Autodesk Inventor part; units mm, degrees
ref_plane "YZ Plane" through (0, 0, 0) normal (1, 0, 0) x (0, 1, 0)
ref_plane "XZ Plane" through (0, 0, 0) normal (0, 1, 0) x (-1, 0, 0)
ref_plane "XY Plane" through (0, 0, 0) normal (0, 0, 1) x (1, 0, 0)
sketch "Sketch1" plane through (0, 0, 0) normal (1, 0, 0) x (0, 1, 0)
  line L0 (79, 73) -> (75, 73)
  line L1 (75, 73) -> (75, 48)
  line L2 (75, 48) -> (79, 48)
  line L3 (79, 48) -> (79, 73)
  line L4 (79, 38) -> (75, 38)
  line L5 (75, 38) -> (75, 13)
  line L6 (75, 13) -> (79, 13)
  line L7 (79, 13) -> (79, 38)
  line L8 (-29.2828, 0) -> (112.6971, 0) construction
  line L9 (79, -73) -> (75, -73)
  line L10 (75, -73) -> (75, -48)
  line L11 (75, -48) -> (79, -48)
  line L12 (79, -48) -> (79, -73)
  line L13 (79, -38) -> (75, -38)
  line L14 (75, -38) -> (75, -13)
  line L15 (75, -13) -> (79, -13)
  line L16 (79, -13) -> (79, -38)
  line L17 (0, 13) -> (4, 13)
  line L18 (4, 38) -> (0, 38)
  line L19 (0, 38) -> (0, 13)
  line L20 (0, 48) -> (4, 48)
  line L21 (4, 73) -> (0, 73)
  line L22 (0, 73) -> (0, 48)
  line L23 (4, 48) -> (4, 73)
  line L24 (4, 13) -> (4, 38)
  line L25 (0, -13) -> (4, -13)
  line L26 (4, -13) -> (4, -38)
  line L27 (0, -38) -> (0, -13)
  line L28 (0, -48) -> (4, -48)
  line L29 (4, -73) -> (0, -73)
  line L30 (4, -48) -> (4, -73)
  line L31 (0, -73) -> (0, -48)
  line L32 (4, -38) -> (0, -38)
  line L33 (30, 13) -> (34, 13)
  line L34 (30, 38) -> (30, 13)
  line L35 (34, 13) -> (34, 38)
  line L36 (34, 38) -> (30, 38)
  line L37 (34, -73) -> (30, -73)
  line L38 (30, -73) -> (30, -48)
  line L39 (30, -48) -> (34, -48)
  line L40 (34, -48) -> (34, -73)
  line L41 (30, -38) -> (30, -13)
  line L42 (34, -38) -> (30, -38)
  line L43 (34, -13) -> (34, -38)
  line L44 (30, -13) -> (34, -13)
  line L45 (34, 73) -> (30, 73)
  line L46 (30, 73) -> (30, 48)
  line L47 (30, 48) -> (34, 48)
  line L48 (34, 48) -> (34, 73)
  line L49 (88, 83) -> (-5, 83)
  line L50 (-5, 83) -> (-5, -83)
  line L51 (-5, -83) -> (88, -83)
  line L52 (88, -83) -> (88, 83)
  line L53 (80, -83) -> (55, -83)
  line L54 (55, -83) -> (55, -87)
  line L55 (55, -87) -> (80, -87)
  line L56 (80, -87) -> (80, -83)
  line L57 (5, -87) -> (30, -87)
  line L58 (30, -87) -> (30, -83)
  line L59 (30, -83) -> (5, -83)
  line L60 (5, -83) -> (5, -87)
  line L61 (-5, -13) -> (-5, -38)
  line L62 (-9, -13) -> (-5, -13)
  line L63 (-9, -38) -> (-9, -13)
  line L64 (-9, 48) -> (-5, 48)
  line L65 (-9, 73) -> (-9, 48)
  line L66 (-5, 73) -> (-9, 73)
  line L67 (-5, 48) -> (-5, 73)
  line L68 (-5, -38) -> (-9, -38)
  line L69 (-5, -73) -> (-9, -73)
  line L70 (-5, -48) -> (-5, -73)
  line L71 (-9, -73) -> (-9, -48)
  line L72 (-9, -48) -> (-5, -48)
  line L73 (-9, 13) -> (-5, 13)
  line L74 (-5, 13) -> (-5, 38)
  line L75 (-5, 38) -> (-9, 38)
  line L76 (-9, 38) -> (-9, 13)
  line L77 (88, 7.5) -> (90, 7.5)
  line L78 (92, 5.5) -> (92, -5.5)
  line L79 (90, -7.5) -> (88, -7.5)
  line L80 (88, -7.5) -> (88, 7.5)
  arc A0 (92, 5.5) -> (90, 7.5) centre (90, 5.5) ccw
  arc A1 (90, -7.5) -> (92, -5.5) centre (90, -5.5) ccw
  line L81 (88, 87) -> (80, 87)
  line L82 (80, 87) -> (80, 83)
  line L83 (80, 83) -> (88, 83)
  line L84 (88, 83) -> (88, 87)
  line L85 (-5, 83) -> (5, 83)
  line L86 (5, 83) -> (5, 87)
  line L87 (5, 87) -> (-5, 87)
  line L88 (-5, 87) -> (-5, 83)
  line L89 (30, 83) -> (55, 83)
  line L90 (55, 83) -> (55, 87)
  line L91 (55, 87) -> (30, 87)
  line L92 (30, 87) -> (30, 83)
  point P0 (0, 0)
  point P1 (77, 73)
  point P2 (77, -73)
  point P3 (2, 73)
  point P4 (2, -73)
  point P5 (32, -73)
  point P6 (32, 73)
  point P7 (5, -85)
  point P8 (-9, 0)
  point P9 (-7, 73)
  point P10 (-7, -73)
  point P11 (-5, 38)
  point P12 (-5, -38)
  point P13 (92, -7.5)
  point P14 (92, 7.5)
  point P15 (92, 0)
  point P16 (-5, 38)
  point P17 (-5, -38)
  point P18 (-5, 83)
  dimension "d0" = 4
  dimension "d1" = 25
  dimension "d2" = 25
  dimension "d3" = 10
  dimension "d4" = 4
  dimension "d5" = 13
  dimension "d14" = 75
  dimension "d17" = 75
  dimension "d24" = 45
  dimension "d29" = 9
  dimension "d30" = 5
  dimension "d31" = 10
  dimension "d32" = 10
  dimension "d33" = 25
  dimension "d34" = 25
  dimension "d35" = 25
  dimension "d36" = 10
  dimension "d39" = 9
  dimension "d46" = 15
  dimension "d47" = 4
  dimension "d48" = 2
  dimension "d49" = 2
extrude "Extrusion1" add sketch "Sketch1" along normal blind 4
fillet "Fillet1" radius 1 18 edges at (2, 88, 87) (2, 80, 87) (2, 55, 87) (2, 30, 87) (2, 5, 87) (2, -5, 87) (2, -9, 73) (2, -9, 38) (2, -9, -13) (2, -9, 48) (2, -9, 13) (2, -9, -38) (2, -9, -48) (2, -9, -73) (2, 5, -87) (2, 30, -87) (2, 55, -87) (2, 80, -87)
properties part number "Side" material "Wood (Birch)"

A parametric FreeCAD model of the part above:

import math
import FreeCAD as App
import Part
import Sketcher

V = App.Vector


def edges_at(feature, points):
    """Names of the edges that pass closest to the given points."""
    edges = feature.Shape.Edges
    near = lambda p: min(range(len(edges)), key=lambda i: edges[i].distToShape(Part.Vertex(*p))[0])
    return sorted({f"Edge{near(p) + 1}" for p in points})


def add_polygon(sketch, points):
    """Adds a closed chain of lines whose ends are joined by coincident constraints."""
    first, n = sketch.GeometryCount, len(points)
    for a, b in zip(points, points[1:] + points[:1]):
        sketch.addGeometry(Part.LineSegment(App.Vector(*a, 0), App.Vector(*b, 0)), False)
    for i in range(n):
        sketch.addConstraint(Sketcher.Constraint("Coincident", first + i, 2, first + (i + 1) % n, 1))

doc = App.newDocument("Part")
body = doc.addObject("PartDesign::Body", "Body")

# Sketch on YZ plane
sketch1 = body.newObject("Sketcher::SketchObject", "Sketch")
sketch1.AttachmentSupport = (doc.getObject("YZ_Plane"), [""])
sketch1.MapMode = "FlatFace"
sketch1.addGeometry(Part.LineSegment(V(88, 7.5, 0), V(88, 87, 0)), False)  # 0
sketch1.addGeometry(Part.LineSegment(V(88, 87, 0), V(80, 87, 0)), False)  # 1
sketch1.addGeometry(Part.LineSegment(V(80, 87, 0), V(80, 83, 0)), False)  # 2
sketch1.addGeometry(Part.LineSegment(V(80, 83, 0), V(55, 83, 0)), False)  # 3
sketch1.addGeometry(Part.LineSegment(V(55, 83, 0), V(55, 87, 0)), False)  # 4
sketch1.addGeometry(Part.LineSegment(V(55, 87, 0), V(30, 87, 0)), False)  # 5
sketch1.addGeometry(Part.LineSegment(V(30, 87, 0), V(30, 83, 0)), False)  # 6
sketch1.addGeometry(Part.LineSegment(V(30, 83, 0), V(5, 83, 0)), False)  # 7
sketch1.addGeometry(Part.LineSegment(V(5, 83, 0), V(5, 87, 0)), False)  # 8
sketch1.addGeometry(Part.LineSegment(V(5, 87, 0), V(-5, 87, 0)), False)  # 9
sketch1.addGeometry(Part.LineSegment(V(-5, 87, 0), V(-5, 73, 0)), False)  # 10
sketch1.addGeometry(Part.LineSegment(V(-5, 73, 0), V(-9, 73, 0)), False)  # 11
sketch1.addGeometry(Part.LineSegment(V(-9, 73, 0), V(-9, 48, 0)), False)  # 12
sketch1.addGeometry(Part.LineSegment(V(-9, 48, 0), V(-5, 48, 0)), False)  # 13
sketch1.addGeometry(Part.LineSegment(V(-5, 48, 0), V(-5, 38, 0)), False)  # 14
sketch1.addGeometry(Part.LineSegment(V(-5, 38, 0), V(-9, 38, 0)), False)  # 15
sketch1.addGeometry(Part.LineSegment(V(-9, 38, 0), V(-9, 13, 0)), False)  # 16
sketch1.addGeometry(Part.LineSegment(V(-9, 13, 0), V(-5, 13, 0)), False)  # 17
sketch1.addGeometry(Part.LineSegment(V(-5, 13, 0), V(-5, -13, 0)), False)  # 18
sketch1.addGeometry(Part.LineSegment(V(-5, -13, 0), V(-9, -13, 0)), False)  # 19
sketch1.addGeometry(Part.LineSegment(V(-9, -13, 0), V(-9, -38, 0)), False)  # 20
sketch1.addGeometry(Part.LineSegment(V(-9, -38, 0), V(-5, -38, 0)), False)  # 21
sketch1.addGeometry(Part.LineSegment(V(-5, -38, 0), V(-5, -48, 0)), False)  # 22
sketch1.addGeometry(Part.LineSegment(V(-5, -48, 0), V(-9, -48, 0)), False)  # 23
sketch1.addGeometry(Part.LineSegment(V(-9, -48, 0), V(-9, -73, 0)), False)  # 24
sketch1.addGeometry(Part.LineSegment(V(-9, -73, 0), V(-5, -73, 0)), False)  # 25
sketch1.addGeometry(Part.LineSegment(V(-5, -73, 0), V(-5, -83, 0)), False)  # 26
sketch1.addGeometry(Part.LineSegment(V(-5, -83, 0), V(5, -83, 0)), False)  # 27
sketch1.addGeometry(Part.LineSegment(V(5, -83, 0), V(5, -87, 0)), False)  # 28
sketch1.addGeometry(Part.LineSegment(V(5, -87, 0), V(30, -87, 0)), False)  # 29
sketch1.addGeometry(Part.LineSegment(V(30, -87, 0), V(30, -83, 0)), False)  # 30
sketch1.addGeometry(Part.LineSegment(V(30, -83, 0), V(55, -83, 0)), False)  # 31
sketch1.addGeometry(Part.LineSegment(V(55, -83, 0), V(55, -87, 0)), False)  # 32
sketch1.addGeometry(Part.LineSegment(V(55, -87, 0), V(80, -87, 0)), False)  # 33
sketch1.addGeometry(Part.LineSegment(V(80, -87, 0), V(80, -83, 0)), False)  # 34
sketch1.addGeometry(Part.LineSegment(V(80, -83, 0), V(88, -83, 0)), False)  # 35
sketch1.addGeometry(Part.LineSegment(V(88, -83, 0), V(88, -7.5, 0)), False)  # 36
sketch1.addGeometry(Part.LineSegment(V(88, -7.5, 0), V(90, -7.5, 0)), False)  # 37
sketch1.addGeometry(Part.ArcOfCircle(Part.Circle(V(90, -5.5, 0), V(0, 0, 1), 2), math.radians(-90), math.radians(0)), False)  # 38
sketch1.addGeometry(Part.LineSegment(V(92, -5.5, 0), V(92, 5.5, 0)), False)  # 39
sketch1.addGeometry(Part.ArcOfCircle(Part.Circle(V(90, 5.5, 0), V(0, 0, 1), 2), math.radians(0), math.radians(90)), False)  # 40
sketch1.addGeometry(Part.LineSegment(V(90, 7.5, 0), V(88, 7.5, 0)), False)  # 41
add_polygon(sketch1, [(0, -73), (0, -48), (4, -48), (4, -73)])  # lines 42-45
add_polygon(sketch1, [(34, -48), (34, -73), (30, -73), (30, -48)])  # lines 46-49
add_polygon(sketch1, [(0, -38), (0, -13), (4, -13), (4, -38)])  # lines 50-53
add_polygon(sketch1, [(34, -38), (30, -38), (30, -13), (34, -13)])  # lines 54-57
add_polygon(sketch1, [(79, -48), (79, -73), (75, -73), (75, -48)])  # lines 58-61
add_polygon(sketch1, [(79, -13), (79, -38), (75, -38), (75, -13)])  # lines 62-65
add_polygon(sketch1, [(4, 13), (0, 13), (0, 38), (4, 38)])  # lines 66-69
add_polygon(sketch1, [(34, 13), (30, 13), (30, 38), (34, 38)])  # lines 70-73
add_polygon(sketch1, [(4, 48), (0, 48), (0, 73), (4, 73)])  # lines 74-77
add_polygon(sketch1, [(30, 73), (34, 73), (34, 48), (30, 48)])  # lines 78-81
add_polygon(sketch1, [(75, 38), (79, 38), (79, 13), (75, 13)])  # lines 82-85
add_polygon(sketch1, [(75, 73), (79, 73), (79, 48), (75, 48)])  # lines 86-89
sketch1.addConstraint(Sketcher.Constraint("Coincident", 0, 2, 1, 1))
sketch1.addConstraint(Sketcher.Constraint("Coincident", 1, 2, 2, 1))
sketch1.addConstraint(Sketcher.Constraint("Coincident", 2, 2, 3, 1))
sketch1.addConstraint(Sketcher.Constraint("Coincident", 3, 2, 4, 1))
sketch1.addConstraint(Sketcher.Constraint("Coincident", 4, 2, 5, 1))
sketch1.addConstraint(Sketcher.Constraint("Coincident", 5, 2, 6, 1))
sketch1.addConstraint(Sketcher.Constraint("Coincident", 6, 2, 7, 1))
sketch1.addConstraint(Sketcher.Constraint("Coincident", 7, 2, 8, 1))
sketch1.addConstraint(Sketcher.Constraint("Coincident", 8, 2, 9, 1))
sketch1.addConstraint(Sketcher.Constraint("Coincident", 9, 2, 10, 1))
sketch1.addConstraint(Sketcher.Constraint("Coincident", 10, 2, 11, 1))
sketch1.addConstraint(Sketcher.Constraint("Coincident", 11, 2, 12, 1))
sketch1.addConstraint(Sketcher.Constraint("Coincident", 12, 2, 13, 1))
sketch1.addConstraint(Sketcher.Constraint("Coincident", 13, 2, 14, 1))
sketch1.addConstraint(Sketcher.Constraint("Coincident", 14, 2, 15, 1))
sketch1.addConstraint(Sketcher.Constraint("Coincident", 15, 2, 16, 1))
sketch1.addConstraint(Sketcher.Constraint("Coincident", 16, 2, 17, 1))
sketch1.addConstraint(Sketcher.Constraint("Coincident", 17, 2, 18, 1))
sketch1.addConstraint(Sketcher.Constraint("Coincident", 18, 2, 19, 1))
sketch1.addConstraint(Sketcher.Constraint("Coincident", 19, 2, 20, 1))
sketch1.addConstraint(Sketcher.Constraint("Coincident", 20, 2, 21, 1))
sketch1.addConstraint(Sketcher.Constraint("Coincident", 21, 2, 22, 1))
sketch1.addConstraint(Sketcher.Constraint("Coincident", 22, 2, 23, 1))
sketch1.addConstraint(Sketcher.Constraint("Coincident", 23, 2, 24, 1))
sketch1.addConstraint(Sketcher.Constraint("Coincident", 24, 2, 25, 1))
sketch1.addConstraint(Sketcher.Constraint("Coincident", 25, 2, 26, 1))
sketch1.addConstraint(Sketcher.Constraint("Coincident", 26, 2, 27, 1))
sketch1.addConstraint(Sketcher.Constraint("Coincident", 27, 2, 28, 1))
sketch1.addConstraint(Sketcher.Constraint("Coincident", 28, 2, 29, 1))
sketch1.addConstraint(Sketcher.Constraint("Coincident", 29, 2, 30, 1))
sketch1.addConstraint(Sketcher.Constraint("Coincident", 30, 2, 31, 1))
sketch1.addConstraint(Sketcher.Constraint("Coincident", 31, 2, 32, 1))
sketch1.addConstraint(Sketcher.Constraint("Coincident", 32, 2, 33, 1))
sketch1.addConstraint(Sketcher.Constraint("Coincident", 33, 2, 34, 1))
sketch1.addConstraint(Sketcher.Constraint("Coincident", 34, 2, 35, 1))
sketch1.addConstraint(Sketcher.Constraint("Coincident", 35, 2, 36, 1))
sketch1.addConstraint(Sketcher.Constraint("Coincident", 36, 2, 37, 1))
sketch1.addConstraint(Sketcher.Constraint("Tangent", 37, 2, 38, 1))
sketch1.addConstraint(Sketcher.Constraint("Tangent", 38, 2, 39, 1))
sketch1.addConstraint(Sketcher.Constraint("Tangent", 39, 2, 40, 1))
sketch1.addConstraint(Sketcher.Constraint("Tangent", 40, 2, 41, 1))
sketch1.addConstraint(Sketcher.Constraint("Coincident", 41, 2, 0, 1))
sketch1.addConstraint(Sketcher.Constraint("Vertical", 0))
sketch1.addConstraint(Sketcher.Constraint("Horizontal", 1))
sketch1.addConstraint(Sketcher.Constraint("Vertical", 2))
sketch1.addConstraint(Sketcher.Constraint("Horizontal", 3))
sketch1.addConstraint(Sketcher.Constraint("Vertical", 4))
sketch1.addConstraint(Sketcher.Constraint("Horizontal", 5))
sketch1.addConstraint(Sketcher.Constraint("Vertical", 6))
sketch1.addConstraint(Sketcher.Constraint("Horizontal", 7))
sketch1.addConstraint(Sketcher.Constraint("Vertical", 8))
sketch1.addConstraint(Sketcher.Constraint("Horizontal", 9))
sketch1.addConstraint(Sketcher.Constraint("Vertical", 10))
sketch1.addConstraint(Sketcher.Constraint("Horizontal", 11))
sketch1.addConstraint(Sketcher.Constraint("Vertical", 12))
sketch1.addConstraint(Sketcher.Constraint("Horizontal", 13))
sketch1.addConstraint(Sketcher.Constraint("Vertical", 14))
sketch1.addConstraint(Sketcher.Constraint("Horizontal", 15))
sketch1.addConstraint(Sketcher.Constraint("Vertical", 16))
sketch1.addConstraint(Sketcher.Constraint("Horizontal", 17))
sketch1.addConstraint(Sketcher.Constraint("Vertical", 18))
sketch1.addConstraint(Sketcher.Constraint("Horizontal", 19))
sketch1.addConstraint(Sketcher.Constraint("Vertical", 20))
sketch1.addConstraint(Sketcher.Constraint("Horizontal", 21))
sketch1.addConstraint(Sketcher.Constraint("Vertical", 22))
sketch1.addConstraint(Sketcher.Constraint("Horizontal", 23))
sketch1.addConstraint(Sketcher.Constraint("Vertical", 24))
sketch1.addConstraint(Sketcher.Constraint("Horizontal", 25))
sketch1.addConstraint(Sketcher.Constraint("Vertical", 26))
sketch1.addConstraint(Sketcher.Constraint("Horizontal", 27))
sketch1.addConstraint(Sketcher.Constraint("Vertical", 28))
sketch1.addConstraint(Sketcher.Constraint("Horizontal", 29))
sketch1.addConstraint(Sketcher.Constraint("Vertical", 30))
sketch1.addConstraint(Sketcher.Constraint("Horizontal", 31))
sketch1.addConstraint(Sketcher.Constraint("Vertical", 32))
sketch1.addConstraint(Sketcher.Constraint("Horizontal", 33))
sketch1.addConstraint(Sketcher.Constraint("Vertical", 34))
sketch1.addConstraint(Sketcher.Constraint("Horizontal", 35))
sketch1.addConstraint(Sketcher.Constraint("Vertical", 36))
sketch1.addConstraint(Sketcher.Constraint("Horizontal", 37))
sketch1.addConstraint(Sketcher.Constraint("Vertical", 39))
sketch1.addConstraint(Sketcher.Constraint("Horizontal", 41))
sketch1.addConstraint(Sketcher.Constraint("Vertical", 42))
sketch1.addConstraint(Sketcher.Constraint("Horizontal", 43))
sketch1.addConstraint(Sketcher.Constraint("Vertical", 44))
sketch1.addConstraint(Sketcher.Constraint("Horizontal", 45))
sketch1.addConstraint(Sketcher.Constraint("Vertical", 46))
sketch1.addConstraint(Sketcher.Constraint("Horizontal", 47))
sketch1.addConstraint(Sketcher.Constraint("Vertical", 48))
sketch1.addConstraint(Sketcher.Constraint("Horizontal", 49))
sketch1.addConstraint(Sketcher.Constraint("Vertical", 50))
sketch1.addConstraint(Sketcher.Constraint("Horizontal", 51))
sketch1.addConstraint(Sketcher.Constraint("Vertical", 52))
sketch1.addConstraint(Sketcher.Constraint("Horizontal", 53))
sketch1.addConstraint(Sketcher.Constraint("Horizontal", 54))
sketch1.addConstraint(Sketcher.Constraint("Vertical", 55))
sketch1.addConstraint(Sketcher.Constraint("Horizontal", 56))
sketch1.addConstraint(Sketcher.Constraint("Vertical", 57))
sketch1.addConstraint(Sketcher.Constraint("Vertical", 58))
sketch1.addConstraint(Sketcher.Constraint("Horizontal", 59))
sketch1.addConstraint(Sketcher.Constraint("Vertical", 60))
sketch1.addConstraint(Sketcher.Constraint("Horizontal", 61))
sketch1.addConstraint(Sketcher.Constraint("Vertical", 62))
sketch1.addConstraint(Sketcher.Constraint("Horizontal", 63))
sketch1.addConstraint(Sketcher.Constraint("Vertical", 64))
sketch1.addConstraint(Sketcher.Constraint("Horizontal", 65))
sketch1.addConstraint(Sketcher.Constraint("Horizontal", 66))
sketch1.addConstraint(Sketcher.Constraint("Vertical", 67))
sketch1.addConstraint(Sketcher.Constraint("Horizontal", 68))
sketch1.addConstraint(Sketcher.Constraint("Vertical", 69))
sketch1.addConstraint(Sketcher.Constraint("Horizontal", 70))
sketch1.addConstraint(Sketcher.Constraint("Vertical", 71))
sketch1.addConstraint(Sketcher.Constraint("Horizontal", 72))
sketch1.addConstraint(Sketcher.Constraint("Vertical", 73))
sketch1.addConstraint(Sketcher.Constraint("Horizontal", 74))
sketch1.addConstraint(Sketcher.Constraint("Vertical", 75))
sketch1.addConstraint(Sketcher.Constraint("Horizontal", 76))
sketch1.addConstraint(Sketcher.Constraint("Vertical", 77))
sketch1.addConstraint(Sketcher.Constraint("Horizontal", 78))
sketch1.addConstraint(Sketcher.Constraint("Vertical", 79))
sketch1.addConstraint(Sketcher.Constraint("Horizontal", 80))
sketch1.addConstraint(Sketcher.Constraint("Vertical", 81))
sketch1.addConstraint(Sketcher.Constraint("Horizontal", 82))
sketch1.addConstraint(Sketcher.Constraint("Vertical", 83))
sketch1.addConstraint(Sketcher.Constraint("Horizontal", 84))
sketch1.addConstraint(Sketcher.Constraint("Vertical", 85))
sketch1.addConstraint(Sketcher.Constraint("Horizontal", 86))
sketch1.addConstraint(Sketcher.Constraint("Vertical", 87))
sketch1.addConstraint(Sketcher.Constraint("Horizontal", 88))
sketch1.addConstraint(Sketcher.Constraint("Vertical", 89))
sketch1.addConstraint(Sketcher.Constraint("Equal", 38, 40))
sketch1.addConstraint(Sketcher.Constraint("Symmetric", 7, 2, 26, 2, -1, 1))
sketch1.addConstraint(Sketcher.Constraint("Symmetric", 9, 2, 28, 2, -1, 1))
sketch1.addConstraint(Sketcher.Constraint("Symmetric", 50, 2, 66, 2, -1, 1))
sketch1.addConstraint(Sketcher.Constraint("Symmetric", 42, 2, 74, 2, -1, 1))
sketch1.addConstraint(Sketcher.Constraint("Symmetric", 16, 2, 19, 2, -1))
sketch1.addConstraint(Sketcher.Constraint("Symmetric", 14, 2, 21, 2, -1))
sketch1.addConstraint(Sketcher.Constraint("Symmetric", 12, 2, 23, 2, -1))
sketch1.addConstraint(Sketcher.Constraint("Symmetric", 10, 2, 25, 2, -1))
sketch1.addConstraint(Sketcher.Constraint("Symmetric", 5, 2, 29, 2, -1))
sketch1.addConstraint(Sketcher.Constraint("Symmetric", 3, 2, 31, 2, -1))
sketch1.addConstraint(Sketcher.Constraint("Symmetric", 1, 2, 33, 2, -1))
sketch1.addConstraint(Sketcher.Constraint("Symmetric", 36, 2, 41, 2, -1))
sketch1.addConstraint(Sketcher.Constraint("Symmetric", 53, 2, 67, 2, -1))
sketch1.addConstraint(Sketcher.Constraint("Symmetric", 55, 2, 70, 2, -1))
sketch1.addConstraint(Sketcher.Constraint("Symmetric", 57, 2, 72, 2, -1))
sketch1.addConstraint(Sketcher.Constraint("Symmetric", 45, 2, 75, 2, -1))
sketch1.addConstraint(Sketcher.Constraint("Symmetric", 46, 2, 78, 2, -1))
sketch1.addConstraint(Sketcher.Constraint("Symmetric", 48, 2, 80, 2, -1))
sketch1.addConstraint(Sketcher.Constraint("Symmetric", 62, 2, 82, 2, -1))
sketch1.addConstraint(Sketcher.Constraint("Symmetric", 64, 2, 84, 2, -1))
sketch1.addConstraint(Sketcher.Constraint("Symmetric", 58, 2, 86, 2, -1))
sketch1.addConstraint(Sketcher.Constraint("Symmetric", 60, 2, 88, 2, -1))
sketch1.addConstraint(Sketcher.Constraint("Horizontal", 1, 2, 4, 2))
sketch1.addConstraint(Sketcher.Constraint("Horizontal", 3, 2, 6, 2))
sketch1.addConstraint(Sketcher.Constraint("Horizontal", 31, 2, 34, 2))
sketch1.addConstraint(Sketcher.Constraint("Horizontal", 23, 2, 42, 2))
sketch1.addConstraint(Sketcher.Constraint("Horizontal", 25, 2, 44, 2))
sketch1.addConstraint(Sketcher.Constraint("Horizontal", 45, 2, 46, 2))
sketch1.addConstraint(Sketcher.Constraint("Horizontal", 43, 2, 48, 2))
sketch1.addConstraint(Sketcher.Constraint("Horizontal", 19, 2, 50, 2))
sketch1.addConstraint(Sketcher.Constraint("Horizontal", 21, 2, 52, 2))
sketch1.addConstraint(Sketcher.Constraint("Horizontal", 53, 2, 54, 2))
sketch1.addConstraint(Sketcher.Constraint("Horizontal", 51, 2, 55, 2))
sketch1.addConstraint(Sketcher.Constraint("Horizontal", 47, 2, 58, 2))
sketch1.addConstraint(Sketcher.Constraint("Horizontal", 49, 2, 60, 2))
sketch1.addConstraint(Sketcher.Constraint("Horizontal", 57, 2, 62, 2))
sketch1.addConstraint(Sketcher.Constraint("Horizontal", 56, 2, 64, 2))
sketch1.addConstraint(Sketcher.Constraint("Vertical", 10, 2, 13, 2))
sketch1.addConstraint(Sketcher.Constraint("Vertical", 12, 2, 15, 2))
sketch1.addConstraint(Sketcher.Constraint("Vertical", 14, 2, 17, 2))
sketch1.addConstraint(Sketcher.Constraint("Vertical", 30, 2, 47, 2))
sketch1.addConstraint(Sketcher.Constraint("Vertical", 44, 2, 51, 2))
sketch1.addConstraint(Sketcher.Constraint("Vertical", 48, 2, 54, 2))
sketch1.addConstraint(Sketcher.Constraint("Vertical", 49, 2, 56, 2))
sketch1.addConstraint(Sketcher.Constraint("Vertical", 61, 2, 62, 2))
sketch1.addConstraint(Sketcher.Constraint("Vertical", 60, 2, 63, 2))
sketch1.addConstraint(Sketcher.Constraint("Vertical", 52, 2, 68, 2))
sketch1.addConstraint(Sketcher.Constraint("Vertical", 69, 2, 76, 2))
sketch1.addConstraint(Sketcher.Constraint("Equal", 3, 5))
sketch1.addConstraint(Sketcher.Constraint("Equal", 5, 7))
sketch1.addConstraint(Sketcher.Constraint("Equal", 25, 43))
sketch1.addConstraint(Sketcher.Constraint("Equal", 45, 47))
sketch1.addConstraint(Sketcher.Constraint("Equal", 56, 59))
sketch1.addConstraint(Sketcher.Constraint("Equal", 88, 2))
sketch1.addConstraint(Sketcher.Constraint("Equal", 33, 12))
sketch1.addConstraint(Sketcher.Constraint("Equal", 27, 14))
sketch1.addConstraint(Sketcher.Constraint("Equal", 12, 16))
sketch1.addConstraint(Sketcher.Constraint("Equal", 22, 26))
sketch1.addConstraint(Sketcher.Constraint("Radius", 38, 2.0))
sketch1.addConstraint(Sketcher.Constraint("DistanceX", 3, 2, 3, 1, 25.0))
sketch1.addConstraint(Sketcher.Constraint("DistanceX", 9, 2, 9, 1, 10.0))
sketch1.addConstraint(Sketcher.Constraint("DistanceX", 11, 2, 11, 1, 4.0))
sketch1.addConstraint(Sketcher.Constraint("DistanceX", 37, 1, 37, 2, 2.0))
sketch1.addConstraint(Sketcher.Constraint("DistanceY", -1, 1, 16, 2, 13.0))
sketch1.addConstraint(Sketcher.Constraint("DistanceX", -1, 1, 59, 2, 75.0))
sketch1.addConstraint(Sketcher.Constraint("DistanceX", 1, 2, 1, 1, 8.0))
sketch1.addConstraint(Sketcher.Constraint("DistanceY", 39, 1, 39, 2, 11.0))
pad1 = body.newObject("PartDesign::Pad", "Pad")
pad1.Profile = sketch1
pad1.Length = 4
doc.recompute()

fillet = body.newObject("PartDesign::Fillet", "Fillet")
fillet.Base = (pad1, edges_at(pad1, [
    (2, 88, 87),
    (2, 80, 87),
    (2, 55, 87),
    (2, 30, 87),
    (2, 5, 87),
    (2, -5, 87),
    (2, -9, 73),
    (2, -9, 38),
    (2, -9, -13),
    (2, -9, 48),
    (2, -9, 13),
    (2, -9, -38),
    (2, -9, -48),
    (2, -9, -73),
    (2, 5, -87),
    (2, 30, -87),
    (2, 55, -87),
    (2, 80, -87),
]))
fillet.Radius = 1

doc.recompute()
